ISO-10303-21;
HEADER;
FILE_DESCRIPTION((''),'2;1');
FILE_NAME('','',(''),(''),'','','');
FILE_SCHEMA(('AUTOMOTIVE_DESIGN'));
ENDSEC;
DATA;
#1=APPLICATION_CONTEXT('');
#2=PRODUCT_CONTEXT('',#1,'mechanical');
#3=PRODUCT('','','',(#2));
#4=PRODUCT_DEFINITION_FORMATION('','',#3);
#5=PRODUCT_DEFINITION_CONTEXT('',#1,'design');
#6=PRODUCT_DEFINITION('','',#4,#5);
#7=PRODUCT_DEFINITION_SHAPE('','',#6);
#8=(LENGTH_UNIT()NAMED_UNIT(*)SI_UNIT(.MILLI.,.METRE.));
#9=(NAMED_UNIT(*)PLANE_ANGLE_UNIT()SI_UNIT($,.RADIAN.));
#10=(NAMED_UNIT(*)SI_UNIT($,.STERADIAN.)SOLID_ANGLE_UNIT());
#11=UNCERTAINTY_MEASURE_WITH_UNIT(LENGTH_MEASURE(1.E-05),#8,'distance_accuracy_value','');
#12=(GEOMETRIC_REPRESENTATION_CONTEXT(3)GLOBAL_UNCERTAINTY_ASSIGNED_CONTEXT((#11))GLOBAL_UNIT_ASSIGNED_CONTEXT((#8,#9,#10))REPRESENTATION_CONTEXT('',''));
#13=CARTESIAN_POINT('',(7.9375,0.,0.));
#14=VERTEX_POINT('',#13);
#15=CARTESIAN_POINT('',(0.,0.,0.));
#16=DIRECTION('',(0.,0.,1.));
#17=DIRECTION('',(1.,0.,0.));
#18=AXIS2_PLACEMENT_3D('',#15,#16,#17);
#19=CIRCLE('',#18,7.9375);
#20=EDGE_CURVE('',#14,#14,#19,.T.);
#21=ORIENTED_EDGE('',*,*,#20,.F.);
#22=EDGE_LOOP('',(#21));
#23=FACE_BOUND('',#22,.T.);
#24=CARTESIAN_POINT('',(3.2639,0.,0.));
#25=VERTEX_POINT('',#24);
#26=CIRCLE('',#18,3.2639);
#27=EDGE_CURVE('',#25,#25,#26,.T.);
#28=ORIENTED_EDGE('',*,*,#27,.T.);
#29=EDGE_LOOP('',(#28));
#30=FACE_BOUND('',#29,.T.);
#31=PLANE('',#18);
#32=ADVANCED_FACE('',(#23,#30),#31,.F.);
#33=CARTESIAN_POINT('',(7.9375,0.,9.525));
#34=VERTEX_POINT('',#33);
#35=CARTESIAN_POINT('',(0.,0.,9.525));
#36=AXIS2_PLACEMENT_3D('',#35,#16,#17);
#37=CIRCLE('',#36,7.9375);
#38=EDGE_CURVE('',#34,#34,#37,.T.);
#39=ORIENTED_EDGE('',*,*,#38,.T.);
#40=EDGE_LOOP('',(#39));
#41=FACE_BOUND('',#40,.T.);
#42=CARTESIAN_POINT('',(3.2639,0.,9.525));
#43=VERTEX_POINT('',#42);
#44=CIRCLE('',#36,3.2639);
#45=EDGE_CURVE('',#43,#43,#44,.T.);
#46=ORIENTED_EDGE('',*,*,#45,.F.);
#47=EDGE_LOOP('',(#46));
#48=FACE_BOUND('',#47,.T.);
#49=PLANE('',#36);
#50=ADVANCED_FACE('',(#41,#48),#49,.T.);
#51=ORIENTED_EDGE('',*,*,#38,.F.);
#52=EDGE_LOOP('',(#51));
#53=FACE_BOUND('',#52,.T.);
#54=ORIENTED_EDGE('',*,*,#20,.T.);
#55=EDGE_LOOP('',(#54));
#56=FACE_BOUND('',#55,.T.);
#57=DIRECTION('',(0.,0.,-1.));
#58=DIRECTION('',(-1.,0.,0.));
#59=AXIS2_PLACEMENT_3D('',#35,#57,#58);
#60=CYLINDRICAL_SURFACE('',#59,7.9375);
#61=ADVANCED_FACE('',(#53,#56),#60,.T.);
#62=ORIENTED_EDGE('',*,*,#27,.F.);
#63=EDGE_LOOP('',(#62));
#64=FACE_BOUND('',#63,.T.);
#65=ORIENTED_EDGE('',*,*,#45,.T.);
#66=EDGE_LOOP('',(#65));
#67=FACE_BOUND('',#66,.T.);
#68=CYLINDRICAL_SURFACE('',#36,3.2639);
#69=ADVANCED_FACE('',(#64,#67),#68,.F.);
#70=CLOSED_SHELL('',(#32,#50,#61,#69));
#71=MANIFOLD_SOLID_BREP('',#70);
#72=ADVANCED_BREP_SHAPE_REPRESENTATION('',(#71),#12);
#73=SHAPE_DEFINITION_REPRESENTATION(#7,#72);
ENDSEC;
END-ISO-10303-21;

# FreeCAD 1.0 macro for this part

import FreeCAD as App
import Part
import Sketcher
Q = App.Units.Quantity

doc = App.newDocument("Part")
params = doc.addObject("Spreadsheet::Sheet", "Params")
for row, (alias, value) in enumerate([
    ("sketch1_diameter", "0.625 in"),
    ("pad1_length", "0.375 in"),
    ("sketch2_diameter", "0.257 in"),
    ("hole_diameter", "0.257 in"),
], start=1):
    params.set(f"A{row}", alias)
    params.set(f"B{row}", "=" + value)
    params.setAlias(f"B{row}", alias)

body = doc.addObject("PartDesign::Body", "Body")

# Sketch on XY plane
sketch1 = body.newObject("Sketcher::SketchObject", "Sketch")
sketch1.AttachmentSupport = (doc.getObject("XY_Plane"), [""])
sketch1.MapMode = "FlatFace"
sketch1.addGeometry(Part.Circle(App.Vector(0, 0, 0), App.Vector(0, 0, 1), 8), False)
sketch1.addConstraint([
    Sketcher.Constraint("Coincident", 0, 3, -1, 1),
    Sketcher.Constraint("Diameter", 0, Q("0.625 in")),
])
sketch1.setExpression("Constraints[1]", "Params.sketch1_diameter")
pad1 = body.newObject("PartDesign::Pad", "Pad")
pad1.Profile = sketch1
pad1.setExpression("Length", "Params.pad1_length")

# Sketch on XY plane
sketch2 = body.newObject("Sketcher::SketchObject", "Sketch001")
sketch2.AttachmentSupport = (doc.getObject("XY_Plane"), [""])
sketch2.MapMode = "FlatFace"
sketch2.AttachmentOffset = App.Placement(App.Vector(0, 0, 0.375 * 25.4), App.Rotation())
sketch2.addGeometry(Part.Circle(App.Vector(0, 0, 0), App.Vector(0, 0, 1), 3.3), False)
sketch2.addConstraint([
    Sketcher.Constraint("Coincident", 0, 3, -1, 1),
    Sketcher.Constraint("Diameter", 0, Q("0.257 in")),
])
sketch2.setExpression("Constraints[1]", "Params.sketch2_diameter")
doc.recompute()
hole = body.newObject("PartDesign::Hole", "Hole")
hole.Profile = sketch2
hole.ThreadType = "None"
hole.setExpression("Diameter", "Params.hole_diameter")
hole.DepthType = "ThroughAll"

doc.recompute()
